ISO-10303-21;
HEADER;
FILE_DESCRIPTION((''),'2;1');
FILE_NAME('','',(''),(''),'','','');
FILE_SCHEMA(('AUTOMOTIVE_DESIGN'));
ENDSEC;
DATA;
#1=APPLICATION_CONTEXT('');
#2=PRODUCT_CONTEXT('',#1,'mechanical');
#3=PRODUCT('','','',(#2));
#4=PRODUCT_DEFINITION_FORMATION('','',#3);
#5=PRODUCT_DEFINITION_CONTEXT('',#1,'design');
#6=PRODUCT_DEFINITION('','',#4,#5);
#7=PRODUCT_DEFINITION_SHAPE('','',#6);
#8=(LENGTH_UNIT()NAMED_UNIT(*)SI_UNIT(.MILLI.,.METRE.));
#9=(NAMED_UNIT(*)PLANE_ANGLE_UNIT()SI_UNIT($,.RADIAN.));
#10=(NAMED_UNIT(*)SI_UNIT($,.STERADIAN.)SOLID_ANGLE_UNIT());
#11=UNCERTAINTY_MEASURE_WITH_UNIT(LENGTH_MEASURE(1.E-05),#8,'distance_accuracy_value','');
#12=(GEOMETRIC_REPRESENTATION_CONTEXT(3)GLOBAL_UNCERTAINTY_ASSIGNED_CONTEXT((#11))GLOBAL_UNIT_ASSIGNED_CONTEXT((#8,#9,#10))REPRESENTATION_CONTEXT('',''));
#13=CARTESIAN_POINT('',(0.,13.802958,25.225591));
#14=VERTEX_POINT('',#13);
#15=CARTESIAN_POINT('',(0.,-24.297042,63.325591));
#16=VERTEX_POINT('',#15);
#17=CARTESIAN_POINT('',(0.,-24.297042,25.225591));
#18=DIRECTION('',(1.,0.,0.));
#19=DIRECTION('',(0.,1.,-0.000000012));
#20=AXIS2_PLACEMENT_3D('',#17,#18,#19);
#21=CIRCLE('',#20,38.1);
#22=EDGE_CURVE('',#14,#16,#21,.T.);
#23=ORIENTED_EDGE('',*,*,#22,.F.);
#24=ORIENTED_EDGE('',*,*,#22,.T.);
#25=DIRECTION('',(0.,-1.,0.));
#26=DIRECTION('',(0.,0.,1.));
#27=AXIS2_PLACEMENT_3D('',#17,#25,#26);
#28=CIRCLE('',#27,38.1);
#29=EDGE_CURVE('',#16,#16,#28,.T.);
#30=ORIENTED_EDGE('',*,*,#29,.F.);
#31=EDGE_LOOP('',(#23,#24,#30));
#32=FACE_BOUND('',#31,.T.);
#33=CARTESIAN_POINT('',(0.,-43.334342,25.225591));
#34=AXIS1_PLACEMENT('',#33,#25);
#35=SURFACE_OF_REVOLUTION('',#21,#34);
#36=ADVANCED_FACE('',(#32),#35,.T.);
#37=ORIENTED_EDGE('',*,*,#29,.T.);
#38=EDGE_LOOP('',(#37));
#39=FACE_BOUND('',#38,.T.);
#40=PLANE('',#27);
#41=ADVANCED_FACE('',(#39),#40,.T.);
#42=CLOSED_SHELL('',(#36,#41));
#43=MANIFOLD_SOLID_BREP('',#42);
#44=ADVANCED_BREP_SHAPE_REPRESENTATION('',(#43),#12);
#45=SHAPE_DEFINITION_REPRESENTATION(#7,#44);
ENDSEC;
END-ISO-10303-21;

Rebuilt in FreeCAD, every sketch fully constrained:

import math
import FreeCAD as App
import Part
import Sketcher
Q = App.Units.Quantity

doc = App.newDocument("Part")
params = doc.addObject("Spreadsheet::Sheet", "Params")
for row, (alias, value) in enumerate([
    ("sketch1_radius", "1.5 in"),
    ("revolution_angle", "360 deg"),
], start=1):
    params.set(f"A{row}", alias)
    params.set(f"B{row}", "=" + value)
    params.setAlias(f"B{row}", alias)

body = doc.addObject("PartDesign::Body", "Body")

# Sketch on YZ plane
sketch1 = body.newObject("Sketcher::SketchObject", "Sketch")
sketch1.AttachmentSupport = (doc.getObject("YZ_Plane"), [""])
sketch1.MapMode = "FlatFace"
sketch1.addGeometry([
    Part.ArcOfCircle(Part.Circle(App.Vector(-24, 25, 0), App.Vector(0, 0, 1), 38), math.radians(0), math.radians(90)),
    Part.LineSegment(App.Vector(-24, 63, 0), App.Vector(-24, 25, 0)),
    Part.LineSegment(App.Vector(-24, 25, 0), App.Vector(14, 25, 0)),
], False)
sketch1.addGeometry(Part.LineSegment(App.Vector(14, 25, 0), App.Vector(-24, 25, 0)), True)  # axis
sketch1.addConstraint([
    Sketcher.Constraint("Coincident", 0, 2, 1, 1),
    Sketcher.Constraint("Coincident", 1, 2, 2, 1),
    Sketcher.Constraint("Coincident", 2, 2, 0, 1),
    Sketcher.Constraint("Vertical", 1),
    Sketcher.Constraint("Horizontal", 2),
    Sketcher.Constraint("Horizontal", 3),
    Sketcher.Constraint("Coincident", 1, 2, 0, 3),
    Sketcher.Constraint("Coincident", 3, 1, 2, 2),
    Sketcher.Constraint("Vertical", 0, 2, 3, 2),
    Sketcher.Constraint("Radius", 0, Q("1.5 in")),
    Sketcher.Constraint("DistanceX", 0, 3, -1, 1, 24.297042),
    Sketcher.Constraint("DistanceY", -1, 1, 0, 3, 25.225591),
])
sketch1.setExpression("Constraints[9]", "Params.sketch1_radius")
revolution = body.newObject("PartDesign::Revolution", "Revolution")
revolution.Profile = sketch1
revolution.ReferenceAxis = (sketch1, ["Axis0"])
revolution.setExpression("Angle", "Params.revolution_angle")

doc.recompute()
